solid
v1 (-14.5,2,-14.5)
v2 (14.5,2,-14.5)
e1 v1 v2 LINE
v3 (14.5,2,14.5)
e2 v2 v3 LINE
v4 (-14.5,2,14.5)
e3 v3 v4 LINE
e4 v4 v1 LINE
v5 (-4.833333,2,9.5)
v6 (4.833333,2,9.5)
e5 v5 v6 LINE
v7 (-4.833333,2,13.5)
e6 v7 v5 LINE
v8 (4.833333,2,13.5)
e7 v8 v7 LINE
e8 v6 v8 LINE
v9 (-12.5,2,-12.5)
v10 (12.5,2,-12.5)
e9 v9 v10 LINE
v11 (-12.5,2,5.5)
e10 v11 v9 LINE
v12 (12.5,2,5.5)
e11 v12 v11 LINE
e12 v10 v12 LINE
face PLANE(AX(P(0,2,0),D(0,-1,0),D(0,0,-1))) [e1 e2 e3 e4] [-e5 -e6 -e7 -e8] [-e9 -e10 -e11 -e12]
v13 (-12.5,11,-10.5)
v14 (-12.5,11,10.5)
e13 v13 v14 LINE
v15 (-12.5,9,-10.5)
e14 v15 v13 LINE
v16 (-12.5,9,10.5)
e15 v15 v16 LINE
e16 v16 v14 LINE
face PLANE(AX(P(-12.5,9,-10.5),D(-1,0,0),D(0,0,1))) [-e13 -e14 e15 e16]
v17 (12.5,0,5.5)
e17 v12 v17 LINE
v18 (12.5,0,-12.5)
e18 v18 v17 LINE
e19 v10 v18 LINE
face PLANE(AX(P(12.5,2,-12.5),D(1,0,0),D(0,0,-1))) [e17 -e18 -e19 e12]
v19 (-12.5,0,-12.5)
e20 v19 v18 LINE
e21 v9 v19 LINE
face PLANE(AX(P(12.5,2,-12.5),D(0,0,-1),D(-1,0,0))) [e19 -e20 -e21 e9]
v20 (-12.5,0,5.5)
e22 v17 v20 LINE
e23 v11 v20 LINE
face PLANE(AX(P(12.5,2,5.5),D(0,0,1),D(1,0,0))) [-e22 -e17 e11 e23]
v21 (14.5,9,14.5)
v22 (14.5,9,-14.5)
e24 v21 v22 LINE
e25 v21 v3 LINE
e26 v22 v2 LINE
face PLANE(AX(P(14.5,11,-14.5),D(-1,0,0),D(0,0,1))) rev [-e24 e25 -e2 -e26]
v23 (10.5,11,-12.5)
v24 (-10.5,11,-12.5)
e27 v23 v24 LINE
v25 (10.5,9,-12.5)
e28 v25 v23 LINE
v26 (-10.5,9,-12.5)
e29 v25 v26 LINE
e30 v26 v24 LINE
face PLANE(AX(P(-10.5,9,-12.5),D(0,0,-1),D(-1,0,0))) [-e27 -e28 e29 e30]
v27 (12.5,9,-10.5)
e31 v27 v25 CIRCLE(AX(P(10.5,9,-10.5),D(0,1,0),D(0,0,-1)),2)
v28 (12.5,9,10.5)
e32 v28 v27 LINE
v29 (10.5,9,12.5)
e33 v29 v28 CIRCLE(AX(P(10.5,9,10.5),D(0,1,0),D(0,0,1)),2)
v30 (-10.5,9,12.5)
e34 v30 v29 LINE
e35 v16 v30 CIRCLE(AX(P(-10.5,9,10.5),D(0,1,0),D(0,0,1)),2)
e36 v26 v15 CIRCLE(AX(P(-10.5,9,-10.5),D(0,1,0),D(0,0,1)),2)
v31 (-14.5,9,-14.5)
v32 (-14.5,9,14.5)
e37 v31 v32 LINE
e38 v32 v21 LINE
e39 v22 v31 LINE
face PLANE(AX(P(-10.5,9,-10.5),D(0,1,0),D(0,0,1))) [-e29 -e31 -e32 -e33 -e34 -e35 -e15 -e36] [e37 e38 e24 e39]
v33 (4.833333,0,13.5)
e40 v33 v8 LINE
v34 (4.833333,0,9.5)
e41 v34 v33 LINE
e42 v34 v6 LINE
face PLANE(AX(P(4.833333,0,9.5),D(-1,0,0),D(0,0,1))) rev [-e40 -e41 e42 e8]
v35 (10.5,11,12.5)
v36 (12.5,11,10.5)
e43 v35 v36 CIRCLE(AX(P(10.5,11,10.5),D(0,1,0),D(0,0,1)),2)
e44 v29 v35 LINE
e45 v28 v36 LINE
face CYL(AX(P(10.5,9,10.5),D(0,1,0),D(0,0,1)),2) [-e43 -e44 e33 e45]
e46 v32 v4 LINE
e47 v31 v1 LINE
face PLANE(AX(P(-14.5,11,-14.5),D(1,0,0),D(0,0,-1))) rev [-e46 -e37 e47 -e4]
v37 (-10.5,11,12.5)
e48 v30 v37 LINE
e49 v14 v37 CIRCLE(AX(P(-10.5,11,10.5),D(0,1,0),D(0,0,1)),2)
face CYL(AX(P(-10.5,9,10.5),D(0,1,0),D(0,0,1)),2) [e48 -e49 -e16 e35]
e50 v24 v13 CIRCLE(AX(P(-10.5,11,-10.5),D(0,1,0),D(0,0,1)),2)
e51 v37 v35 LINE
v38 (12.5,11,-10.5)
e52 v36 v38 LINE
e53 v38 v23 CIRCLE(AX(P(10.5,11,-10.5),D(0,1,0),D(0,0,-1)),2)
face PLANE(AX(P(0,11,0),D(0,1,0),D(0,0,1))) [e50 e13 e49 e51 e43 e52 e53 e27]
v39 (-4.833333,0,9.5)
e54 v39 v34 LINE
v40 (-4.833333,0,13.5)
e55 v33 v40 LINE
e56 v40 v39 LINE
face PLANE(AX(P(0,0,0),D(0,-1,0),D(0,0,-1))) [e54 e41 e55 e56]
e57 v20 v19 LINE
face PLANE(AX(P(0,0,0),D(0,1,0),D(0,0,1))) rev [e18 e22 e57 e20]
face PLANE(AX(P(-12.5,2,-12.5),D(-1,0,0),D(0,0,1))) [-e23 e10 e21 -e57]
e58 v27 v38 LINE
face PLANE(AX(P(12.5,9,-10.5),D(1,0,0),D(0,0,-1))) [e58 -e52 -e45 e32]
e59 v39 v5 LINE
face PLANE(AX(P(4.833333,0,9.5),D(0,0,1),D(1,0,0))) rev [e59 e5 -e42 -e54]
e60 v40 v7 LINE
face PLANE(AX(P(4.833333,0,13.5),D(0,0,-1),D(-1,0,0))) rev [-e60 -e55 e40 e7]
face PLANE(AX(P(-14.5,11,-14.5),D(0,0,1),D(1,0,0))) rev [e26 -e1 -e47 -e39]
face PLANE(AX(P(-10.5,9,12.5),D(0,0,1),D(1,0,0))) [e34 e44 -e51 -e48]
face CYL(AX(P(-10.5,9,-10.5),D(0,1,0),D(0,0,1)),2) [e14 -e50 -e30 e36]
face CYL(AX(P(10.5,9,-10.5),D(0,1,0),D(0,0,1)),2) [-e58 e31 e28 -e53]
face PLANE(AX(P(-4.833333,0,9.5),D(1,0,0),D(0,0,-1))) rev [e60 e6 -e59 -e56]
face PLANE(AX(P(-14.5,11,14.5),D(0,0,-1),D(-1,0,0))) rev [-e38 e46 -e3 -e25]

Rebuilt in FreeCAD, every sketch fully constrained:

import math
import FreeCAD as App
import Part
import Sketcher
from FreeCAD import Vector

doc = App.newDocument("Part")
body = doc.addObject("PartDesign::Body", "Body")

sketch1 = doc.addObject("Sketcher::SketchObject", "Sketch")
body.addObject(sketch1)
sketch1.AttachmentSupport = (doc.XZ_Plane, [""])
sketch1.MapMode = "FlatFace"
sketch1.addGeometry([
    Part.LineSegment(Vector(-14, -14, 0), Vector(-14, 14, 0)),
    Part.LineSegment(Vector(-14, 14, 0), Vector(14, 14, 0)),
    Part.LineSegment(Vector(14, 14, 0), Vector(14, -14, 0)),
    Part.LineSegment(Vector(14, -14, 0), Vector(-14, -14, 0)),
], False)
sketch1.addConstraint([
    Sketcher.Constraint("Coincident", 0, 2, 1, 1),
    Sketcher.Constraint("Coincident", 1, 2, 2, 1),
    Sketcher.Constraint("Coincident", 2, 2, 3, 1),
    Sketcher.Constraint("Coincident", 3, 2, 0, 1),
    Sketcher.Constraint("Vertical", 0),
    Sketcher.Constraint("Horizontal", 1),
    Sketcher.Constraint("Vertical", 2),
    Sketcher.Constraint("Horizontal", 3),
    Sketcher.Constraint("Symmetric", 0, 2, 2, 2, -1, 1),
    Sketcher.Constraint("Equal", 3, 0),
    Sketcher.Constraint("DistanceX", 1, 1, 1, 2, 29.0),
])
pad1 = doc.addObject("PartDesign::Pad", "Pad")
body.addObject(pad1)
pad1.Profile = sketch1
pad1.Length = 11
pad1.Reversed = True

sketch2 = doc.addObject("Sketcher::SketchObject", "Sketch001")
body.addObject(sketch2)
sketch2.AttachmentSupport = (doc.XZ_Plane, [""])
sketch2.MapMode = "FlatFace"
sketch2.AttachmentOffset = App.Placement(Vector(0, 0, -11), App.Rotation())
sketch2.addGeometry([
    Part.LineSegment(Vector(10.5, -17.5, 0), Vector(-10.5, -17.5, 0)),
    Part.ArcOfCircle(Part.Circle(Vector(-10.5, -10.5, 0), Vector(0, 0, 1), 7), math.radians(-180), math.radians(-90)),
    Part.LineSegment(Vector(-17.5, -10.5, 0), Vector(-17.5, 10.5, 0)),
    Part.ArcOfCircle(Part.Circle(Vector(-10.5, 10.5, 0), Vector(0, 0, 1), 7), math.radians(90), math.radians(180)),
    Part.LineSegment(Vector(-10.5, 17.5, 0), Vector(10.5, 17.5, 0)),
    Part.ArcOfCircle(Part.Circle(Vector(10.5, 10.5, 0), Vector(0, 0, 1), 7), math.radians(0), math.radians(90)),
    Part.LineSegment(Vector(17.5, 10.5, 0), Vector(17.5, -10.5, 0)),
    Part.ArcOfCircle(Part.Circle(Vector(10.5, -10.5, 0), Vector(0, 0, 1), 7), math.radians(-90), math.radians(0)),
    Part.LineSegment(Vector(-10.5, -12.5, 0), Vector(10.5, -12.5, 0)),
    Part.ArcOfCircle(Part.Circle(Vector(10.5, -10.5, 0), Vector(0, 0, 1), 2), math.radians(-90), math.radians(0)),
    Part.LineSegment(Vector(12.5, -10.5, 0), Vector(12.5, 10.5, 0)),
    Part.ArcOfCircle(Part.Circle(Vector(10.5, 10.5, 0), Vector(0, 0, 1), 2), math.radians(0), math.radians(90)),
    Part.LineSegment(Vector(10.5, 12.5, 0), Vector(-10.5, 12.5, 0)),
    Part.ArcOfCircle(Part.Circle(Vector(-10.5, 10.5, 0), Vector(0, 0, 1), 2), math.radians(90), math.radians(180)),
    Part.LineSegment(Vector(-12.5, 10.5, 0), Vector(-12.5, -10.5, 0)),
    Part.ArcOfCircle(Part.Circle(Vector(-10.5, -10.5, 0), Vector(0, 0, 1), 2), math.radians(-180), math.radians(-90)),
], False)
sketch2.addConstraint([
    Sketcher.Constraint("Tangent", 0, 2, 1, 2),
    Sketcher.Constraint("Tangent", 1, 1, 2, 1),
    Sketcher.Constraint("Tangent", 2, 2, 3, 2),
    Sketcher.Constraint("Tangent", 3, 1, 4, 1),
    Sketcher.Constraint("Tangent", 4, 2, 5, 2),
    Sketcher.Constraint("Tangent", 5, 1, 6, 1),
    Sketcher.Constraint("Tangent", 6, 2, 7, 2),
    Sketcher.Constraint("Tangent", 7, 1, 0, 1),
    Sketcher.Constraint("Tangent", 8, 2, 9, 1),
    Sketcher.Constraint("Tangent", 9, 2, 10, 1),
    Sketcher.Constraint("Tangent", 10, 2, 11, 1),
    Sketcher.Constraint("Tangent", 11, 2, 12, 1),
    Sketcher.Constraint("Tangent", 12, 2, 13, 1),
    Sketcher.Constraint("Tangent", 13, 2, 14, 1),
    Sketcher.Constraint("Tangent", 14, 2, 15, 1),
    Sketcher.Constraint("Tangent", 15, 2, 8, 1),
    Sketcher.Constraint("Horizontal", 0),
    Sketcher.Constraint("Vertical", 2),
    Sketcher.Constraint("Horizontal", 4),
    Sketcher.Constraint("Vertical", 6),
    Sketcher.Constraint("Horizontal", 8),
    Sketcher.Constraint("Vertical", 10),
    Sketcher.Constraint("Horizontal", 12),
    Sketcher.Constraint("Vertical", 14),
    Sketcher.Constraint("Coincident", 9, 3, 7, 3),
    Sketcher.Constraint("Coincident", 11, 3, 5, 3),
    Sketcher.Constraint("Coincident", 13, 3, 3, 3),
    Sketcher.Constraint("Equal", 1, 3),
    Sketcher.Constraint("Equal", 3, 5),
    Sketcher.Constraint("Equal", 5, 7),
    Sketcher.Constraint("Equal", 13, 15),
    Sketcher.Constraint("Symmetric", 1, 3, 5, 3, -1, 1),
    Sketcher.Constraint("Equal", 12, 2),
    Sketcher.Constraint("Radius", 1, 7.0),
    Sketcher.Constraint("Radius", 9, 2.0),
    Sketcher.Constraint("DistanceX", 0, 2, 0, 1, 21.0),
])
pocket1 = doc.addObject("PartDesign::Pocket", "Pocket")
body.addObject(pocket1)
pocket1.Profile = sketch2
pocket1.Length = 2
pocket1.Reversed = True

sketch3 = doc.addObject("Sketcher::SketchObject", "Sketch002")
body.addObject(sketch3)
sketch3.AttachmentSupport = (doc.XZ_Plane, [""])
sketch3.MapMode = "FlatFace"
sketch3.addGeometry([
    Part.LineSegment(Vector(14, -14, 0), Vector(14, 14, 0)),
    Part.LineSegment(Vector(14, 14, 0), Vector(-14, 14, 0)),
    Part.LineSegment(Vector(-14, 14, 0), Vector(-14, -14, 0)),
    Part.LineSegment(Vector(-14, -14, 0), Vector(14, -14, 0)),
    Part.LineSegment(Vector(-12, 6, 0), Vector(12, 6, 0)),
    Part.LineSegment(Vector(12, 6, 0), Vector(12, -12, 0)),
    Part.LineSegment(Vector(12, -12, 0), Vector(-12, -12, 0)),
    Part.LineSegment(Vector(-12, -12, 0), Vector(-12, 6, 0)),
], False)
sketch3.addConstraint([
    Sketcher.Constraint("Coincident", 0, 2, 1, 1),
    Sketcher.Constraint("Coincident", 1, 2, 2, 1),
    Sketcher.Constraint("Coincident", 2, 2, 3, 1),
    Sketcher.Constraint("Coincident", 3, 2, 0, 1),
    Sketcher.Constraint("Coincident", 4, 2, 5, 1),
    Sketcher.Constraint("Coincident", 5, 2, 6, 1),
    Sketcher.Constraint("Coincident", 6, 2, 7, 1),
    Sketcher.Constraint("Coincident", 7, 2, 4, 1),
    Sketcher.Constraint("Vertical", 0),
    Sketcher.Constraint("Horizontal", 1),
    Sketcher.Constraint("Vertical", 2),
    Sketcher.Constraint("Horizontal", 3),
    Sketcher.Constraint("Horizontal", 4),
    Sketcher.Constraint("Vertical", 5),
    Sketcher.Constraint("Horizontal", 6),
    Sketcher.Constraint("Vertical", 7),
    Sketcher.Constraint("Symmetric", 0, 2, 2, 2, -1, 1),
    Sketcher.Constraint("Equal", 3, 0),
    Sketcher.Constraint("DistanceX", 1, 2, 1, 1, 29.0),
    Sketcher.Constraint("DistanceX", 4, 1, 4, 2, 25.0),
    Sketcher.Constraint("DistanceY", 5, 2, 5, 1, 18.0),
    Sketcher.Constraint("DistanceX", 4, 2, 0, 2, 2.0),
    Sketcher.Constraint("DistanceY", 4, 2, 0, 2, 9.0),
])
pocket2 = doc.addObject("PartDesign::Pocket", "Pocket001")
body.addObject(pocket2)
pocket2.Profile = sketch3
pocket2.Length = 2

sketch4 = doc.addObject("Sketcher::SketchObject", "Sketch003")
body.addObject(sketch4)
sketch4.AttachmentSupport = (doc.XZ_Plane, [""])
sketch4.MapMode = "FlatFace"
sketch4.AttachmentOffset = App.Placement(Vector(0, 0, -2), App.Rotation())
sketch4.addGeometry([
    Part.LineSegment(Vector(-4.8, 13.5, 0), Vector(-4.8, 9.5, 0)),
    Part.LineSegment(Vector(-4.8, 9.5, 0), Vector(4.8, 9.5, 0)),
    Part.LineSegment(Vector(4.8, 9.5, 0), Vector(4.8, 13.5, 0)),
    Part.LineSegment(Vector(4.8, 13.5, 0), Vector(-4.8, 13.5, 0)),
], False)
sketch4.addConstraint([
    Sketcher.Constraint("Coincident", 0, 2, 1, 1),
    Sketcher.Constraint("Coincident", 1, 2, 2, 1),
    Sketcher.Constraint("Coincident", 2, 2, 3, 1),
    Sketcher.Constraint("Coincident", 3, 2, 0, 1),
    Sketcher.Constraint("Vertical", 0),
    Sketcher.Constraint("Horizontal", 1),
    Sketcher.Constraint("Vertical", 2),
    Sketcher.Constraint("Horizontal", 3),
    Sketcher.Constraint("DistanceY", 0, 2, 0, 1, 4.0),
    Sketcher.Constraint("DistanceY", -1, 1, 0, 2, 9.5),
    Sketcher.Constraint("DistanceX", 1, 1, 1, 2, 9.666667),
    Sketcher.Constraint("DistanceX", 0, 2, -1, 1, 4.833333),
])
pad2 = doc.addObject("PartDesign::Pad", "Pad001")
body.addObject(pad2)
pad2.Profile = sketch4
pad2.Length = 2

doc.recompute()
